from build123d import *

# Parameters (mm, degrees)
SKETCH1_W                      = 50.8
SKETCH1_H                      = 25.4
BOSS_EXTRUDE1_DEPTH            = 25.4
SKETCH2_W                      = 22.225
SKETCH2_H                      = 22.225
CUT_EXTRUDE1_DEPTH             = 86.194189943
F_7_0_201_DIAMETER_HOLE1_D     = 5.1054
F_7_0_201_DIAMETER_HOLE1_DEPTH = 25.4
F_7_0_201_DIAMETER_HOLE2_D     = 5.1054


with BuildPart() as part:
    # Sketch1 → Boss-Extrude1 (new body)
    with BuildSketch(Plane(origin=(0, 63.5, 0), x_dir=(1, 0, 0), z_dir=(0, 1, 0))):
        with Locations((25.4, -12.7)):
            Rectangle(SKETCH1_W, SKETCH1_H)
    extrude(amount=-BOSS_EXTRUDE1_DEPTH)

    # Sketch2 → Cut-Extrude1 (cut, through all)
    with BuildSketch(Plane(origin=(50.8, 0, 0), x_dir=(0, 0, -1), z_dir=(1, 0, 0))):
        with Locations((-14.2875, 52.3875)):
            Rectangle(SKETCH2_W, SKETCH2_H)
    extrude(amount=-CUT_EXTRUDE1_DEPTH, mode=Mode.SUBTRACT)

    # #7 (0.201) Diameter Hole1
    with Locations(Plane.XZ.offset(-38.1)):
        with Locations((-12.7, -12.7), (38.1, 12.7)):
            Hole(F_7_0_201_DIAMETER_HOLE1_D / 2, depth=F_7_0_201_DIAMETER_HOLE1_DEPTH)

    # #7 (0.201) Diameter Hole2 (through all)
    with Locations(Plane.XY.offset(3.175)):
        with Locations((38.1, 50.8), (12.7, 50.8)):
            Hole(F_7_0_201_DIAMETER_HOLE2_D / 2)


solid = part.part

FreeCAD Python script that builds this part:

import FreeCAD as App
import Part
import Sketcher
from FreeCAD import Vector
Q = App.Units.Quantity


def add_polygon(sketch, points):
    """Adds a closed chain of lines whose ends are joined by coincident constraints."""
    first, n = sketch.GeometryCount, len(points)
    for a, b in zip(points, points[1:] + points[:1]):
        sketch.addGeometry(Part.LineSegment(App.Vector(*a, 0), App.Vector(*b, 0)), False)
    for i in range(n):
        sketch.addConstraint(Sketcher.Constraint("Coincident", first + i, 2, first + (i + 1) % n, 1))

doc = App.newDocument("Part")
body = doc.addObject("PartDesign::Body", "Body")

# Sketch on XZ plane
sketch1 = doc.addObject("Sketcher::SketchObject", "Sketch")
body.addObject(sketch1)
sketch1.AttachmentSupport = (doc.XZ_Plane, [""])
sketch1.MapMode = "FlatFace"
sketch1.AttachmentOffset = App.Placement(Vector(0, 0, -2.5 * 25.4), App.Rotation())
add_polygon(sketch1, [(0, 0), (0, 25), (51, 25), (51, 0)])  # lines 0-3
sketch1.addConstraint([
    Sketcher.Constraint("Vertical", 0),
    Sketcher.Constraint("Horizontal", 1),
    Sketcher.Constraint("Vertical", 2),
    Sketcher.Constraint("Horizontal", 3),
    Sketcher.Constraint("Coincident", 3, 2, -1, 1),
    Sketcher.Constraint("DistanceX", 1, 1, 1, 2, Q("2 in")),
    Sketcher.Constraint("DistanceY", 0, 1, 0, 2, Q("1 in")),
])
pad1 = doc.addObject("PartDesign::Pad", "Pad")
body.addObject(pad1)
pad1.Profile = sketch1
pad1.Length = Q("1 in")

# Sketch on YZ plane
sketch2 = doc.addObject("Sketcher::SketchObject", "Sketch001")
body.addObject(sketch2)
sketch2.AttachmentSupport = (doc.YZ_Plane, [""])
sketch2.MapMode = "FlatFace"
sketch2.AttachmentOffset = App.Placement(Vector(0, 0, 2 * 25.4), App.Rotation())
add_polygon(sketch2, [(64, 25), (41, 25), (41, 3), (64, 3)])  # lines 0-3
sketch2.addConstraint([
    Sketcher.Constraint("Horizontal", 0),
    Sketcher.Constraint("Vertical", 1),
    Sketcher.Constraint("Horizontal", 2),
    Sketcher.Constraint("Vertical", 3),
    Sketcher.Constraint("Equal", 2, 1),
    Sketcher.Constraint("DistanceY", -1, 1, 0, 2, Q("1 in")),
    Sketcher.Constraint("DistanceX", -1, 1, 2, 2, Q("2.5 in")),
    Sketcher.Constraint("DistanceX", 0, 2, 0, 1, Q("0.875 in")),
])
pocket1 = doc.addObject("PartDesign::Pocket", "Pocket")
body.addObject(pocket1)
pocket1.Profile = sketch2
pocket1.Type = "ThroughAll"

# Sketch on XZ plane
sketch3 = doc.addObject("Sketcher::SketchObject", "Sketch002")
body.addObject(sketch3)
sketch3.AttachmentSupport = (doc.XZ_Plane, [""])
sketch3.MapMode = "FlatFace"
sketch3.AttachmentOffset = App.Placement(Vector(0, 0, -1.5 * 25.4), App.Rotation())
sketch3.addGeometry([
    Part.Circle(Vector(-12.7, -12.7, 0), Vector(0, 0, 1), 2.6),
    Part.Circle(Vector(38.1, 12.7, 0), Vector(0, 0, 1), 2.6),
], False)
sketch3.addConstraint([
    Sketcher.Constraint("Equal", 0, 1),
    Sketcher.Constraint("Diameter", 0, Q("0.201 in")),
    Sketcher.Constraint("DistanceX", 0, 3, 1, 3, Q("2 in")),
    Sketcher.Constraint("DistanceY", 0, 3, 1, 3, Q("1 in")),
    Sketcher.Constraint("DistanceX", 0, 3, -1, 1, Q("0.5 in")),
    Sketcher.Constraint("DistanceY", 0, 3, -1, 1, Q("0.5 in")),
])
doc.recompute()
hole = doc.addObject("PartDesign::Hole", "Hole")
body.addObject(hole)
hole.Profile = sketch3
hole.ThreadType = "None"
hole.Diameter = Q("0.201 in")
hole.DepthType = "Dimension"
hole.Depth = Q("1 in")
hole.DrillPoint = "Flat"

# Sketch on XY plane
sketch4 = doc.addObject("Sketcher::SketchObject", "Sketch003")
body.addObject(sketch4)
sketch4.AttachmentSupport = (doc.XY_Plane, [""])
sketch4.MapMode = "FlatFace"
sketch4.AttachmentOffset = App.Placement(Vector(0, 0, 0.125 * 25.4), App.Rotation())
sketch4.addGeometry([
    Part.Circle(Vector(38.1, 50.8, 0), Vector(0, 0, 1), 2.6),
    Part.Circle(Vector(12.7, 50.8, 0), Vector(0, 0, 1), 2.6),
], False)
sketch4.addConstraint([
    Sketcher.Constraint("Equal", 0, 1),
    Sketcher.Constraint("Horizontal", 0, 3, 1, 3),
    Sketcher.Constraint("Diameter", 0, Q("0.201 in")),
    Sketcher.Constraint("DistanceY", -1, 1, 0, 3, Q("2 in")),
    Sketcher.Constraint("DistanceX", 1, 3, 0, 3, Q("1 in")),
    Sketcher.Constraint("DistanceX", -1, 1, 0, 3, Q("1.5 in")),
])
doc.recompute()
hole2 = doc.addObject("PartDesign::Hole", "Hole001")
body.addObject(hole2)
hole2.Profile = sketch4
hole2.ThreadType = "None"
hole2.Diameter = Q("0.201 in")
hole2.DepthType = "ThroughAll"

doc.recompute()
